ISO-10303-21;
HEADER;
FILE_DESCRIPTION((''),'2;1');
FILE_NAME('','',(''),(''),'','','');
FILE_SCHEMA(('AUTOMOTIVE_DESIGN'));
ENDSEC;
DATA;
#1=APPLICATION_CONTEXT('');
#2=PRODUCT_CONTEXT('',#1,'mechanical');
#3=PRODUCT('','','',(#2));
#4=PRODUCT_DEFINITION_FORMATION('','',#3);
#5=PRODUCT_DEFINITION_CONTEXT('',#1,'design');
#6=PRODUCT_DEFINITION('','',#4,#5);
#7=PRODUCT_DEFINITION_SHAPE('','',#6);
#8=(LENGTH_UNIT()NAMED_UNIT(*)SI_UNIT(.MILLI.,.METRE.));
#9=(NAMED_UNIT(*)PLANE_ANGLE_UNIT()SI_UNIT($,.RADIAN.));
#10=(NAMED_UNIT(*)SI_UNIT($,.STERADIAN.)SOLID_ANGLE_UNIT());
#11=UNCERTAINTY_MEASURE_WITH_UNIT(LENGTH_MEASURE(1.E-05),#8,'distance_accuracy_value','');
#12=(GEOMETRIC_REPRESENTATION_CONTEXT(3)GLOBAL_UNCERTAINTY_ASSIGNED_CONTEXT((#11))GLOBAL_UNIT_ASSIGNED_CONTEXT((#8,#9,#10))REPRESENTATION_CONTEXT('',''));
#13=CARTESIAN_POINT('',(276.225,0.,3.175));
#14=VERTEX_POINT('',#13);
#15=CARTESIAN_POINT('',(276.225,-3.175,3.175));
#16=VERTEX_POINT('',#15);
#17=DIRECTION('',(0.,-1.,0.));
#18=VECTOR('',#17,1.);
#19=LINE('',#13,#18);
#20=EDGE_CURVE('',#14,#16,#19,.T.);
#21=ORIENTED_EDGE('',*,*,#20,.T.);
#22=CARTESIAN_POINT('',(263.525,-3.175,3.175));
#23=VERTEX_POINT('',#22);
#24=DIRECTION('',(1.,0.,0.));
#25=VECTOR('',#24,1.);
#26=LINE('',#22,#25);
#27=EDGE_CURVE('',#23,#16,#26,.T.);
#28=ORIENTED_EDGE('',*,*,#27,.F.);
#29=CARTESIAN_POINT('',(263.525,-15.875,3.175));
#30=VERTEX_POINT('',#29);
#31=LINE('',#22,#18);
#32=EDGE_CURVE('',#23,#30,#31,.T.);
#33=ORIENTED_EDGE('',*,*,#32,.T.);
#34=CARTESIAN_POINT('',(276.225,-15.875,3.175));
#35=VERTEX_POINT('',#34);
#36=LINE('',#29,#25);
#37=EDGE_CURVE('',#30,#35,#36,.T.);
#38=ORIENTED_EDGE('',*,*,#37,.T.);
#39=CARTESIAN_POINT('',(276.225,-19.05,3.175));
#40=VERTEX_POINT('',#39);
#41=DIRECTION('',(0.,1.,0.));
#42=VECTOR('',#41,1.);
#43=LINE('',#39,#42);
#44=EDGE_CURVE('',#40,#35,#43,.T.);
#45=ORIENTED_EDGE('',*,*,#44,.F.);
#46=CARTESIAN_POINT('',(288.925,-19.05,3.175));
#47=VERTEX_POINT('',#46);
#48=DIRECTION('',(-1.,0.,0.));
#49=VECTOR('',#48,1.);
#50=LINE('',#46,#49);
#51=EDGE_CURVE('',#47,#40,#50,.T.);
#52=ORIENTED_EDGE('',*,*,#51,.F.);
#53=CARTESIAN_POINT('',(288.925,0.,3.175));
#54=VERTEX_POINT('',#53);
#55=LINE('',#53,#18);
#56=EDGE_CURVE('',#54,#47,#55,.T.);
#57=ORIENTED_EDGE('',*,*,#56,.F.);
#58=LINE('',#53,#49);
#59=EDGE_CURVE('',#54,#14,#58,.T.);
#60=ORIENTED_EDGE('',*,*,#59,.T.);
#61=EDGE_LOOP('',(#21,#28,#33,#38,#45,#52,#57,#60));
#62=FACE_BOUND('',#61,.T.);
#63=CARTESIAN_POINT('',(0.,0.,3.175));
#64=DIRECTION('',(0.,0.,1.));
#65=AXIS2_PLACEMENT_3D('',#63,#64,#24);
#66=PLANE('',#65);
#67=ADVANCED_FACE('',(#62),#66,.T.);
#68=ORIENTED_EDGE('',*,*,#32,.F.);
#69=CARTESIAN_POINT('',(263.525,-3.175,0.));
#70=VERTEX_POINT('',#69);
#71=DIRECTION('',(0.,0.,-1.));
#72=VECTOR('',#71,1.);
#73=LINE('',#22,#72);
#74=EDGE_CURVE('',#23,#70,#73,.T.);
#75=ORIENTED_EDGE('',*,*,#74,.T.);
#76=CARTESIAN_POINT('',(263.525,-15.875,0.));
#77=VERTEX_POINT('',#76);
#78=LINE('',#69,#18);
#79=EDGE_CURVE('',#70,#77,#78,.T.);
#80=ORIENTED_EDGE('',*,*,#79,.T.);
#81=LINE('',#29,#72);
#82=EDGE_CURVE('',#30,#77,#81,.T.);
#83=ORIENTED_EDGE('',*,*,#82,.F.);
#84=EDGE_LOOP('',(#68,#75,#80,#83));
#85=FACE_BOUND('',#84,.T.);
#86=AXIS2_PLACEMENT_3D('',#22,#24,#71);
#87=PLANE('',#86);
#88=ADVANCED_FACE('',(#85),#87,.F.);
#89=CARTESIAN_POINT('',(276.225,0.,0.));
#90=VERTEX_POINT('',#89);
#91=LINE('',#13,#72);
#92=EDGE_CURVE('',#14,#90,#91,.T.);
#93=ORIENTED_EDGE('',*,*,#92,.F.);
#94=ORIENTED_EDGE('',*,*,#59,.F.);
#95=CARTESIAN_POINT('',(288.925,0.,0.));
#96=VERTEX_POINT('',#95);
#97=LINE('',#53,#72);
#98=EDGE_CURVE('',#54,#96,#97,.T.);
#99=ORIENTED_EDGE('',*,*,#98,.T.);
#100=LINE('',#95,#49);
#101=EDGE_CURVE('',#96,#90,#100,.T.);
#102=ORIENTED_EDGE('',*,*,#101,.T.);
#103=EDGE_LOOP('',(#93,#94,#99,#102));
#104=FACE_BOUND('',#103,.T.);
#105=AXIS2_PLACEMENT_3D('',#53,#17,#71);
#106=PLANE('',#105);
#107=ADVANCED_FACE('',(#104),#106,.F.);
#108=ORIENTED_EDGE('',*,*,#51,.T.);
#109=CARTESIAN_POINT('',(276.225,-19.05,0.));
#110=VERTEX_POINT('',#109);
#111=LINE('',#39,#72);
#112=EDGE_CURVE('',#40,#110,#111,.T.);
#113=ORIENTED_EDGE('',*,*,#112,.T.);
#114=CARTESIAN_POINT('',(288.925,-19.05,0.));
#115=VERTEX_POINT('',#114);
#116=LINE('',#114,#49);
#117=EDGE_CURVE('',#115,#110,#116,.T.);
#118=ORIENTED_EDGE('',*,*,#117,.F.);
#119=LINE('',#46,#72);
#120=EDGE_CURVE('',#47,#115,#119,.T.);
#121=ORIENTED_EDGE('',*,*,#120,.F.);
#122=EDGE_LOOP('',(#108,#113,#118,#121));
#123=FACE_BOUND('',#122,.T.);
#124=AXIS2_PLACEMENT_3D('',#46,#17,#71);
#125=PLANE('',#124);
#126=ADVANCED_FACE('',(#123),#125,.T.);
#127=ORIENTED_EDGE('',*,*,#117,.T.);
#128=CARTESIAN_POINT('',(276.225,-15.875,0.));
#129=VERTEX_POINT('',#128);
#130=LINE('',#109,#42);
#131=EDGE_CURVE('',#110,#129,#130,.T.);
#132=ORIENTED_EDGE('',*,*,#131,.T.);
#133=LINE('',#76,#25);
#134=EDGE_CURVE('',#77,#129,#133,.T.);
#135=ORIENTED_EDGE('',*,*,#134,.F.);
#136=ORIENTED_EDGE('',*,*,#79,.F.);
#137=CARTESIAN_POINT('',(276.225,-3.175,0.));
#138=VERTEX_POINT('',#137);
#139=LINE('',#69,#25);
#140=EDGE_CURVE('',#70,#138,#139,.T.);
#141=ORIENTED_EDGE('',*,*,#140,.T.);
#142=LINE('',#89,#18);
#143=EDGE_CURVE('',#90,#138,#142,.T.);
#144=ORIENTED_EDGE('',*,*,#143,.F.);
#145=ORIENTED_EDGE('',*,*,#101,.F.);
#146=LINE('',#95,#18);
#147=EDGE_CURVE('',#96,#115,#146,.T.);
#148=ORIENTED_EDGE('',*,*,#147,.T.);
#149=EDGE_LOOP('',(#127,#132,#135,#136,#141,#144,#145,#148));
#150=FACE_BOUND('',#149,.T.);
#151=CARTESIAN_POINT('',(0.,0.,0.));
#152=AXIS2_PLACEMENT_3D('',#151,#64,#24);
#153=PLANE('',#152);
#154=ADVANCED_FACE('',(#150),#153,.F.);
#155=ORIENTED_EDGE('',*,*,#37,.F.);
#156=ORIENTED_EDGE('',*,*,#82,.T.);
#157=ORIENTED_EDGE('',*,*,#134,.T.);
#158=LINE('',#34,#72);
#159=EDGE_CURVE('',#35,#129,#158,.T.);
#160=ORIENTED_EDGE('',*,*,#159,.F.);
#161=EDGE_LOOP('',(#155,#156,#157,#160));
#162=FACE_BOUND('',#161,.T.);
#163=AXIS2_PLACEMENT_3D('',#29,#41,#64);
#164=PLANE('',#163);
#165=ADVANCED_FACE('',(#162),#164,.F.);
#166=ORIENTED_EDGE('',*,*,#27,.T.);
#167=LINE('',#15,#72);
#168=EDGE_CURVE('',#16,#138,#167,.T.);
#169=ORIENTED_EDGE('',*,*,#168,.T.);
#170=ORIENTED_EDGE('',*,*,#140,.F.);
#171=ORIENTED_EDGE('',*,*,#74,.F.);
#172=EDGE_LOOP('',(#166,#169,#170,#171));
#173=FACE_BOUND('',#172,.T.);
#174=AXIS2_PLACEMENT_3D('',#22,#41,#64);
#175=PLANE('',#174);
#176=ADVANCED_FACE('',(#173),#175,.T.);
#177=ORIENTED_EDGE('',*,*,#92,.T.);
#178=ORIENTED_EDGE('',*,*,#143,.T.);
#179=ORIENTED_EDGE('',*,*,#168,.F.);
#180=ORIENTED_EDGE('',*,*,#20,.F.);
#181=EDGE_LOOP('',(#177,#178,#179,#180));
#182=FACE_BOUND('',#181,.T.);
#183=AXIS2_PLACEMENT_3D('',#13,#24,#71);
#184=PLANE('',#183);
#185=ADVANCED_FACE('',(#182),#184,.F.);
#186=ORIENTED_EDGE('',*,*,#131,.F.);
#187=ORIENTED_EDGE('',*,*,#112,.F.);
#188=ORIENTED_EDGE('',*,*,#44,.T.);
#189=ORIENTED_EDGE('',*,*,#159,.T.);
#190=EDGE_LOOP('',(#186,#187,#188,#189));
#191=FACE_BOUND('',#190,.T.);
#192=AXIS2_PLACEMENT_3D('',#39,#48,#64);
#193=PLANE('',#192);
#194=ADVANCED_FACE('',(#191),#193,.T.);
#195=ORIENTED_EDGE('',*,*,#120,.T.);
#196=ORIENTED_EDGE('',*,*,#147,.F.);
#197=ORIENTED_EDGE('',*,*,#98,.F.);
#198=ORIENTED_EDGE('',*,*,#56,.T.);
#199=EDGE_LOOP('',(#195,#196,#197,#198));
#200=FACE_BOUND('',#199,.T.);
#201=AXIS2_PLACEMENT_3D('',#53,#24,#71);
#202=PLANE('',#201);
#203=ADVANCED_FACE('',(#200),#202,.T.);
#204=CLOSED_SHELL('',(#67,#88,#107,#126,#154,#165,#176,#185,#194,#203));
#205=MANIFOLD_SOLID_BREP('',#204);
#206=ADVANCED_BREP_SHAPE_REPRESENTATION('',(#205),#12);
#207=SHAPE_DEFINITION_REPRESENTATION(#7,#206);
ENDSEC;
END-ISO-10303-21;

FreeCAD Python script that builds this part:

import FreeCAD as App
import Part
import Sketcher
Q = App.Units.Quantity

doc = App.newDocument("Part")
body = doc.addObject("PartDesign::Body", "Body")

sketch1 = doc.addObject("Sketcher::SketchObject", "Sketch")
body.addObject(sketch1)
sketch1.AttachmentSupport = (doc.XY_Plane, [""])
sketch1.MapMode = "FlatFace"
sketch1.addGeometry(Part.LineSegment(App.Vector(288.9, 0, 0), App.Vector(276.2, 0, 0)), False)
sketch1.addGeometry(Part.LineSegment(App.Vector(276.2, 0, 0), App.Vector(276.2, -3.2, 0)), False)
sketch1.addGeometry(Part.LineSegment(App.Vector(276.2, -3.2, 0), App.Vector(263.5, -3.2, 0)), False)
sketch1.addGeometry(Part.LineSegment(App.Vector(263.5, -3.2, 0), App.Vector(263.5, -15.9, 0)), False)
sketch1.addGeometry(Part.LineSegment(App.Vector(263.5, -15.9, 0), App.Vector(276.2, -15.9, 0)), False)
sketch1.addGeometry(Part.LineSegment(App.Vector(276.2, -15.9, 0), App.Vector(276.2, -19.1, 0)), False)
sketch1.addGeometry(Part.LineSegment(App.Vector(276.2, -19.1, 0), App.Vector(288.9, -19.1, 0)), False)
sketch1.addGeometry(Part.LineSegment(App.Vector(288.9, -19.1, 0), App.Vector(288.9, 0, 0)), False)
sketch1.addConstraint(Sketcher.Constraint("Coincident", 0, 2, 1, 1))
sketch1.addConstraint(Sketcher.Constraint("Coincident", 1, 2, 2, 1))
sketch1.addConstraint(Sketcher.Constraint("Coincident", 2, 2, 3, 1))
sketch1.addConstraint(Sketcher.Constraint("Coincident", 3, 2, 4, 1))
sketch1.addConstraint(Sketcher.Constraint("Coincident", 4, 2, 5, 1))
sketch1.addConstraint(Sketcher.Constraint("Coincident", 5, 2, 6, 1))
sketch1.addConstraint(Sketcher.Constraint("Coincident", 6, 2, 7, 1))
sketch1.addConstraint(Sketcher.Constraint("Coincident", 7, 2, 0, 1))
sketch1.addConstraint(Sketcher.Constraint("Horizontal", 0))
sketch1.addConstraint(Sketcher.Constraint("Vertical", 1))
sketch1.addConstraint(Sketcher.Constraint("Horizontal", 2))
sketch1.addConstraint(Sketcher.Constraint("Vertical", 3))
sketch1.addConstraint(Sketcher.Constraint("Horizontal", 4))
sketch1.addConstraint(Sketcher.Constraint("Vertical", 5))
sketch1.addConstraint(Sketcher.Constraint("Horizontal", 6))
sketch1.addConstraint(Sketcher.Constraint("Vertical", 7))
sketch1.addConstraint(Sketcher.Constraint("PointOnObject", 0, 2, -1))
sketch1.addConstraint(Sketcher.Constraint("Vertical", 1, 2, 4, 2))
sketch1.addConstraint(Sketcher.Constraint("Equal", 0, 2))
sketch1.addConstraint(Sketcher.Constraint("Equal", 6, 3))
sketch1.addConstraint(Sketcher.Constraint("Equal", 1, 5))
sketch1.addConstraint(Sketcher.Constraint("DistanceX", 0, 2, 0, 1, Q("0.5 in")))
sketch1.addConstraint(Sketcher.Constraint("DistanceY", 7, 1, 7, 2, Q("0.75 in")))
sketch1.addConstraint(Sketcher.Constraint("DistanceX", -1, 1, 0, 2, Q("10.875 in")))
pad1 = doc.addObject("PartDesign::Pad", "Pad")
body.addObject(pad1)
pad1.Profile = sketch1
pad1.Length = Q("0.125 in")

doc.recompute()
